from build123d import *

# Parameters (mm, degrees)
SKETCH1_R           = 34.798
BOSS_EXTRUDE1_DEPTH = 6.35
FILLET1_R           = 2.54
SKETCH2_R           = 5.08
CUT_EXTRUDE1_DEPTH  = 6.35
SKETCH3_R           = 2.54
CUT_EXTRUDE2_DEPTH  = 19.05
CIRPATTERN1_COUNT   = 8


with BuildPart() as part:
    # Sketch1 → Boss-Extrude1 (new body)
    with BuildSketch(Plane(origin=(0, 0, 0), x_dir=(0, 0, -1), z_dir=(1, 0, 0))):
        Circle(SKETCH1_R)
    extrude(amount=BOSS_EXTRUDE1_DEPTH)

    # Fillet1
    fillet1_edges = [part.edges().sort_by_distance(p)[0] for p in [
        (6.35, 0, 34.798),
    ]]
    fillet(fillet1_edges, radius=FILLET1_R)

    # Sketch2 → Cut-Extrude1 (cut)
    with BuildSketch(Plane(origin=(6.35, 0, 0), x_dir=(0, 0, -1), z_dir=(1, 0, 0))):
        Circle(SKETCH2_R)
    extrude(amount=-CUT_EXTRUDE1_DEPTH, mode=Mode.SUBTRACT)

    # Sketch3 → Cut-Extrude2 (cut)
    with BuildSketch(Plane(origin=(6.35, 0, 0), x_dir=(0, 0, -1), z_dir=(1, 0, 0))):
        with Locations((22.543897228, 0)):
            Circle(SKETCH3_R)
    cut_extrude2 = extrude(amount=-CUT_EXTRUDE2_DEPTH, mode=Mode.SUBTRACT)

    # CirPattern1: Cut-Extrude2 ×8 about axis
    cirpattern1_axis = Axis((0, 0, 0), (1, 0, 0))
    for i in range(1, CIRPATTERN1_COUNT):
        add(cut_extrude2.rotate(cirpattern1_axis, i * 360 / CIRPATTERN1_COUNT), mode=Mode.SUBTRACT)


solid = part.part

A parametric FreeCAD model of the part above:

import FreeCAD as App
import Part
import Sketcher

V = App.Vector
Q = App.Units.Quantity


def edges_at(feature, points):
    """Names of the edges that pass closest to the given points."""
    edges = feature.Shape.Edges
    near = lambda p: min(range(len(edges)), key=lambda i: edges[i].distToShape(Part.Vertex(*p))[0])
    return sorted({f"Edge{near(p) + 1}" for p in points})

doc = App.newDocument("Part")
body = doc.addObject("PartDesign::Body", "Body")

# Sketch on YZ plane
sketch1 = doc.addObject("Sketcher::SketchObject", "Sketch")
body.addObject(sketch1)
sketch1.AttachmentSupport = (doc.YZ_Plane, [""])
sketch1.MapMode = "FlatFace"
sketch1.addGeometry(Part.Circle(V(0, 0, 0), V(0, 0, 1), 35), False)
sketch1.addConstraint([
    Sketcher.Constraint("Coincident", 0, 3, -1, 1),
    Sketcher.Constraint("Diameter", 0, Q("2.74 in")),
])
pad1 = doc.addObject("PartDesign::Pad", "Pad")
body.addObject(pad1)
pad1.Profile = sketch1
pad1.Length = Q("0.25 in")
doc.recompute()

fillet = doc.addObject("PartDesign::Fillet", "Fillet")
body.addObject(fillet)
fillet.Base = (pad1, edges_at(pad1, [(6.35, 0, 34.798)]))
fillet.Radius = Q("0.1 in")

# Sketch on YZ plane
sketch2 = doc.addObject("Sketcher::SketchObject", "Sketch001")
body.addObject(sketch2)
sketch2.AttachmentSupport = (doc.YZ_Plane, [""])
sketch2.MapMode = "FlatFace"
sketch2.AttachmentOffset = App.Placement(V(0, 0, 0.25 * 25.4), App.Rotation())
sketch2.addGeometry(Part.Circle(V(0, 0, 0), V(0, 0, 1), 5), False)
sketch2.addConstraint([
    Sketcher.Constraint("Coincident", 0, 3, -1, 1),
    Sketcher.Constraint("Diameter", 0, Q("0.4 in")),
])
pocket1 = doc.addObject("PartDesign::Pocket", "Pocket")
body.addObject(pocket1)
pocket1.Profile = sketch2
pocket1.Length = Q("0.25 in")

# Sketch on YZ plane
sketch3 = doc.addObject("Sketcher::SketchObject", "Sketch002")
body.addObject(sketch3)
sketch3.AttachmentSupport = (doc.YZ_Plane, [""])
sketch3.MapMode = "FlatFace"
sketch3.AttachmentOffset = App.Placement(V(0, 0, 0.25 * 25.4), App.Rotation())
sketch3.addGeometry(Part.Circle(V(0, -22.5, 0), V(0, 0, 1), 2.5), False)
sketch3.addConstraint([
    Sketcher.Constraint("PointOnObject", 0, 3, -2),
    Sketcher.Constraint("Diameter", 0, Q("0.2 in")),
    Sketcher.Constraint("DistanceY", 0, 3, -1, 1, Q("22.543897 mm")),
])
pocket2 = doc.addObject("PartDesign::Pocket", "Pocket001")
body.addObject(pocket2)
pocket2.Profile = sketch3
pocket2.Length = Q("0.75 in")
doc.recompute()

polarpattern = doc.addObject("PartDesign::PolarPattern", "PolarPattern")
body.addObject(polarpattern)
polarpattern.Originals = [pocket2]
polarpattern.Axis = (doc.X_Axis, [""])
polarpattern.Angle = 360
polarpattern.Occurrences = 8
body.Tip = polarpattern

doc.recompute()
